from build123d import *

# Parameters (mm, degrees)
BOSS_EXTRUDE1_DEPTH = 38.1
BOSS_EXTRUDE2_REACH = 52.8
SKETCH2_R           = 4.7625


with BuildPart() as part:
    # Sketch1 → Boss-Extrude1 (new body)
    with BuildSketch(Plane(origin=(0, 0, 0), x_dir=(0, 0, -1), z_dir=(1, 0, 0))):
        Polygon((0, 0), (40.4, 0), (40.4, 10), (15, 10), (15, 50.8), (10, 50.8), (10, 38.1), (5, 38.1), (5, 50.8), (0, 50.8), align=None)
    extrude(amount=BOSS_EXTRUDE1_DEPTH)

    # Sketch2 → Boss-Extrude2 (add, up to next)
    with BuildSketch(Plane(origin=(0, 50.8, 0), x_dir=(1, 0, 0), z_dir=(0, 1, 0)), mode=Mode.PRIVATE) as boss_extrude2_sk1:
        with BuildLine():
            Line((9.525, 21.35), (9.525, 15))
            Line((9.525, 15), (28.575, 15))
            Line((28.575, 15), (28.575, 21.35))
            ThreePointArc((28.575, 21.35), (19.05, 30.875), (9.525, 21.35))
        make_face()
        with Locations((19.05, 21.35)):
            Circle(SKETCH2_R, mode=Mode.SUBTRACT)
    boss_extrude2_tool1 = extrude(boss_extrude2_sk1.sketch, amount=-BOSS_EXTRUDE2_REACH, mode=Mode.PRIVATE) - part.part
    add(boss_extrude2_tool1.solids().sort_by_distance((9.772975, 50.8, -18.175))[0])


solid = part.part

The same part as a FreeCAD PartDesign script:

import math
import FreeCAD as App
import Part
import Sketcher
Q = App.Units.Quantity

doc = App.newDocument("Part")
body = doc.addObject("PartDesign::Body", "Body")

sketch1 = body.newObject("Sketcher::SketchObject", "Sketch")
sketch1.AttachmentSupport = (doc.getObject("YZ_Plane"), [""])
sketch1.MapMode = "FlatFace"
sketch1.addGeometry(Part.LineSegment(App.Vector(0, 0, 0), App.Vector(0, -40, 0)), False)
sketch1.addGeometry(Part.LineSegment(App.Vector(0, -40, 0), App.Vector(10, -40, 0)), False)
sketch1.addGeometry(Part.LineSegment(App.Vector(10, -40, 0), App.Vector(10, -15, 0)), False)
sketch1.addGeometry(Part.LineSegment(App.Vector(10, -15, 0), App.Vector(51, -15, 0)), False)
sketch1.addGeometry(Part.LineSegment(App.Vector(51, -15, 0), App.Vector(51, -10, 0)), False)
sketch1.addGeometry(Part.LineSegment(App.Vector(51, -10, 0), App.Vector(38, -10, 0)), False)
sketch1.addGeometry(Part.LineSegment(App.Vector(38, -10, 0), App.Vector(38, -5, 0)), False)
sketch1.addGeometry(Part.LineSegment(App.Vector(38, -5, 0), App.Vector(51, -5, 0)), False)
sketch1.addGeometry(Part.LineSegment(App.Vector(51, -5, 0), App.Vector(51, 0, 0)), False)
sketch1.addGeometry(Part.LineSegment(App.Vector(51, 0, 0), App.Vector(0, 0, 0)), False)
sketch1.addConstraint(Sketcher.Constraint("Coincident", 0, 2, 1, 1))
sketch1.addConstraint(Sketcher.Constraint("Coincident", 1, 2, 2, 1))
sketch1.addConstraint(Sketcher.Constraint("Coincident", 2, 2, 3, 1))
sketch1.addConstraint(Sketcher.Constraint("Coincident", 3, 2, 4, 1))
sketch1.addConstraint(Sketcher.Constraint("Coincident", 4, 2, 5, 1))
sketch1.addConstraint(Sketcher.Constraint("Coincident", 5, 2, 6, 1))
sketch1.addConstraint(Sketcher.Constraint("Coincident", 6, 2, 7, 1))
sketch1.addConstraint(Sketcher.Constraint("Coincident", 7, 2, 8, 1))
sketch1.addConstraint(Sketcher.Constraint("Coincident", 8, 2, 9, 1))
sketch1.addConstraint(Sketcher.Constraint("Coincident", 9, 2, 0, 1))
sketch1.addConstraint(Sketcher.Constraint("Vertical", 0))
sketch1.addConstraint(Sketcher.Constraint("Horizontal", 1))
sketch1.addConstraint(Sketcher.Constraint("Vertical", 2))
sketch1.addConstraint(Sketcher.Constraint("Horizontal", 3))
sketch1.addConstraint(Sketcher.Constraint("Vertical", 4))
sketch1.addConstraint(Sketcher.Constraint("Horizontal", 5))
sketch1.addConstraint(Sketcher.Constraint("Vertical", 6))
sketch1.addConstraint(Sketcher.Constraint("Horizontal", 7))
sketch1.addConstraint(Sketcher.Constraint("Vertical", 8))
sketch1.addConstraint(Sketcher.Constraint("Horizontal", 9))
sketch1.addConstraint(Sketcher.Constraint("Coincident", 9, 2, -1, 1))
sketch1.addConstraint(Sketcher.Constraint("Vertical", 4, 2, 7, 2))
sketch1.addConstraint(Sketcher.Constraint("Equal", 4, 6))
sketch1.addConstraint(Sketcher.Constraint("Equal", 6, 8))
sketch1.addConstraint(Sketcher.Constraint("DistanceX", 9, 2, 9, 1, Q("2 in")))
sketch1.addConstraint(Sketcher.Constraint("DistanceY", 2, 1, 2, 2, Q("1 in")))
sketch1.addConstraint(Sketcher.Constraint("DistanceX", 5, 2, 5, 1, Q("0.5 in")))
sketch1.addConstraint(Sketcher.Constraint("DistanceX", 1, 1, 1, 2, 10.0))
sketch1.addConstraint(Sketcher.Constraint("DistanceY", 0, 2, 0, 1, 40.4))
pad1 = body.newObject("PartDesign::Pad", "Pad")
pad1.Profile = sketch1
pad1.Length = Q("1.5 in")

sketch2 = body.newObject("Sketcher::SketchObject", "Sketch001")
sketch2.AttachmentSupport = (doc.getObject("XZ_Plane"), [""])
sketch2.MapMode = "FlatFace"
sketch2.AttachmentOffset = App.Placement(App.Vector(0, 0, -2 * 25.4), App.Rotation())
sketch2.addGeometry(Part.LineSegment(App.Vector(9.5, -21.4, 0), App.Vector(9.5, -15, 0)), False)
sketch2.addGeometry(Part.LineSegment(App.Vector(9.5, -15, 0), App.Vector(28.6, -15, 0)), False)
sketch2.addGeometry(Part.LineSegment(App.Vector(28.6, -15, 0), App.Vector(28.6, -21.4, 0)), False)
sketch2.addGeometry(Part.ArcOfCircle(Part.Circle(App.Vector(19.1, -21.4, 0), App.Vector(0, 0, 1), 9.5), math.radians(180), math.radians(360)), False)
sketch2.addGeometry(Part.Circle(App.Vector(19.1, -21.4, 0), App.Vector(0, 0, 1), 4.8), False)
sketch2.addConstraint(Sketcher.Constraint("Coincident", 0, 2, 1, 1))
sketch2.addConstraint(Sketcher.Constraint("Coincident", 1, 2, 2, 1))
sketch2.addConstraint(Sketcher.Constraint("Tangent", 2, 2, 3, 2))
sketch2.addConstraint(Sketcher.Constraint("Tangent", 3, 1, 0, 1))
sketch2.addConstraint(Sketcher.Constraint("Vertical", 0))
sketch2.addConstraint(Sketcher.Constraint("Horizontal", 1))
sketch2.addConstraint(Sketcher.Constraint("Vertical", 2))
sketch2.addConstraint(Sketcher.Constraint("Coincident", 4, 3, 3, 3))
sketch2.addConstraint(Sketcher.Constraint("Diameter", 4, Q("0.375 in")))
sketch2.addConstraint(Sketcher.Constraint("Radius", 3, Q("0.375 in")))
sketch2.addConstraint(Sketcher.Constraint("DistanceY", 0, 1, 0, 2, Q("0.25 in")))
sketch2.addConstraint(Sketcher.Constraint("DistanceX", -1, 1, 3, 3, Q("0.75 in")))
sketch2.addConstraint(Sketcher.Constraint("DistanceY", 3, 3, -1, 1, 21.35))
pad2 = body.newObject("PartDesign::Pad", "Pad001")
pad2.Profile = sketch2
pad2.Type = "UpToFirst"

doc.recompute()
